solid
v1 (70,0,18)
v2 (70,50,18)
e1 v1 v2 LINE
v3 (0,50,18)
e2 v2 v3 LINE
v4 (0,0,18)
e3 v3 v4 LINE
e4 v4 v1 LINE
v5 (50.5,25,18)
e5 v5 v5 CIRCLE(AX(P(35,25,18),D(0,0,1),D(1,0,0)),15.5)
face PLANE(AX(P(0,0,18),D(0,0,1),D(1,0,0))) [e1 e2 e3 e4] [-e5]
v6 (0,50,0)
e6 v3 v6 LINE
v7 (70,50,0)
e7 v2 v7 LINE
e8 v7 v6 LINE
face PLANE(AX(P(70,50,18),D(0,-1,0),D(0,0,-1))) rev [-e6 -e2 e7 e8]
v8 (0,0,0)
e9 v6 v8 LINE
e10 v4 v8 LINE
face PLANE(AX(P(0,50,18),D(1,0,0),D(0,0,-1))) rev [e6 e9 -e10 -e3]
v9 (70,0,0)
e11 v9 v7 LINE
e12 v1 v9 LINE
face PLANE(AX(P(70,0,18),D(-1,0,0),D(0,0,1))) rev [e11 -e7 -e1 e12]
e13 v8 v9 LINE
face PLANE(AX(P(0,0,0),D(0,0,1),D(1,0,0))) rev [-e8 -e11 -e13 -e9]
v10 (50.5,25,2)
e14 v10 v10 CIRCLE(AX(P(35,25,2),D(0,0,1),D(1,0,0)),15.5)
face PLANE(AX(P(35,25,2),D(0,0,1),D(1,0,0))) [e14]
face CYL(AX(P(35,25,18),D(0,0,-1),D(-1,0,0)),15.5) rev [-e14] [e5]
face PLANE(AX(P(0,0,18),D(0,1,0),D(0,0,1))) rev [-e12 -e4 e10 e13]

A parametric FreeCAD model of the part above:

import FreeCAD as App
import Part
import Sketcher

V = App.Vector
Q = App.Units.Quantity


def add_polygon(sketch, points):
    """Adds a closed chain of lines whose ends are joined by coincident constraints."""
    first, n = sketch.GeometryCount, len(points)
    for a, b in zip(points, points[1:] + points[:1]):
        sketch.addGeometry(Part.LineSegment(App.Vector(*a, 0), App.Vector(*b, 0)), False)
    for i in range(n):
        sketch.addConstraint(Sketcher.Constraint("Coincident", first + i, 2, first + (i + 1) % n, 1))

doc = App.newDocument("Part")
body = doc.addObject("PartDesign::Body", "Body")

# Sketch on XY plane
sketch1 = body.newObject("Sketcher::SketchObject", "Sketch")
sketch1.AttachmentSupport = (doc.getObject("XY_Plane"), [""])
sketch1.MapMode = "FlatFace"
add_polygon(sketch1, [(0, 50), (0, 0), (70, 0), (70, 50)])  # lines 0-3
sketch1.addGeometry(Part.Circle(V(35, 25, 0), V(0, 0, 1), 16), False)  # 4
sketch1.addConstraint(Sketcher.Constraint("Vertical", 0))
sketch1.addConstraint(Sketcher.Constraint("Horizontal", 1))
sketch1.addConstraint(Sketcher.Constraint("Vertical", 2))
sketch1.addConstraint(Sketcher.Constraint("Horizontal", 3))
sketch1.addConstraint(Sketcher.Constraint("Coincident", 0, 2, -1, 1))
sketch1.addConstraint(Sketcher.Constraint("Diameter", 4, Q("31 mm")))
sketch1.addConstraint(Sketcher.Constraint("DistanceX", 1, 1, 1, 2, Q("70 mm")))
sketch1.addConstraint(Sketcher.Constraint("DistanceY", 0, 2, 0, 1, Q("50 mm")))
sketch1.addConstraint(Sketcher.Constraint("DistanceX", -1, 1, 4, 3, Q("35 mm")))
sketch1.addConstraint(Sketcher.Constraint("DistanceY", -1, 1, 4, 3, Q("25 mm")))
pad1 = body.newObject("PartDesign::Pad", "Pad")
pad1.Profile = sketch1
pad1.Length = 18

# Sketch on XY plane
sketch2 = body.newObject("Sketcher::SketchObject", "Sketch001")
sketch2.AttachmentSupport = (doc.getObject("XY_Plane"), [""])
sketch2.MapMode = "FlatFace"
sketch2.addGeometry(Part.Circle(V(35, 25, 0), V(0, 0, 1), 16), False)
sketch2.addConstraint(Sketcher.Constraint("Diameter", 0, Q("31 mm")))
sketch2.addConstraint(Sketcher.Constraint("DistanceX", -1, 1, 0, 3, Q("35 mm")))
sketch2.addConstraint(Sketcher.Constraint("DistanceY", -1, 1, 0, 3, Q("25 mm")))
pad2 = body.newObject("PartDesign::Pad", "Pad001")
pad2.Profile = sketch2
pad2.Length = 2

doc.recompute()
